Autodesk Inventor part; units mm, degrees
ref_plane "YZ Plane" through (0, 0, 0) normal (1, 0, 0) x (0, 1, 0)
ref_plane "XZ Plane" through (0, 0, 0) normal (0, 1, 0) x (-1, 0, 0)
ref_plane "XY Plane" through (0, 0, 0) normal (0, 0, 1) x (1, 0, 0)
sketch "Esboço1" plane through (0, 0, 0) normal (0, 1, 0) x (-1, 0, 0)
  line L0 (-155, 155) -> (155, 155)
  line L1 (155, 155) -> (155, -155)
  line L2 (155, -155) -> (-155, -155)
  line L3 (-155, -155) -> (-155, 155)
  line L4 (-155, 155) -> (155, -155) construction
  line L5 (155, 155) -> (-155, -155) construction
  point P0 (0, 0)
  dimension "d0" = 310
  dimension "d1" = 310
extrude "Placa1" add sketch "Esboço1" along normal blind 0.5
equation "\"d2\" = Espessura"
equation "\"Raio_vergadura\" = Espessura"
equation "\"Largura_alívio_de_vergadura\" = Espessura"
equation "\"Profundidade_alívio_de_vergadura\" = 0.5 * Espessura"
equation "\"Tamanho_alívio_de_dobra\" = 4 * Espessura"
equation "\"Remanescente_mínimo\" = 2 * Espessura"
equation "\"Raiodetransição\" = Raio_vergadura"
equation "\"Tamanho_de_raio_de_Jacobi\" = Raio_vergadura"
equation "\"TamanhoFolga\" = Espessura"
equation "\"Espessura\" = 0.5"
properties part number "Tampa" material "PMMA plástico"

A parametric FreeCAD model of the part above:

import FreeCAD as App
import Part
import Sketcher
Q = App.Units.Quantity

doc = App.newDocument("Part")
body = doc.addObject("PartDesign::Body", "Body")

sketch1 = body.newObject("Sketcher::SketchObject", "Sketch")
sketch1.AttachmentSupport = (doc.getObject("XZ_Plane"), [""])
sketch1.MapMode = "FlatFace"
sketch1.addGeometry([
    Part.LineSegment(App.Vector(-155, 155, 0), App.Vector(155, 155, 0)),
    Part.LineSegment(App.Vector(155, 155, 0), App.Vector(155, -155, 0)),
    Part.LineSegment(App.Vector(155, -155, 0), App.Vector(-155, -155, 0)),
    Part.LineSegment(App.Vector(-155, -155, 0), App.Vector(-155, 155, 0)),
], False)
sketch1.addConstraint([
    Sketcher.Constraint("Coincident", 0, 2, 1, 1),
    Sketcher.Constraint("Coincident", 1, 2, 2, 1),
    Sketcher.Constraint("Coincident", 2, 2, 3, 1),
    Sketcher.Constraint("Coincident", 3, 2, 0, 1),
    Sketcher.Constraint("Horizontal", 0),
    Sketcher.Constraint("Vertical", 1),
    Sketcher.Constraint("Horizontal", 2),
    Sketcher.Constraint("Vertical", 3),
    Sketcher.Constraint("Symmetric", 0, 2, 2, 2, -1, 1),
    Sketcher.Constraint("Equal", 2, 1),
    Sketcher.Constraint("DistanceX", 0, 1, 0, 2, Q("310 mm")),
])
pad1 = body.newObject("PartDesign::Pad", "Pad")
pad1.Profile = sketch1
pad1.Length = 0.5
pad1.Reversed = True

doc.recompute()
